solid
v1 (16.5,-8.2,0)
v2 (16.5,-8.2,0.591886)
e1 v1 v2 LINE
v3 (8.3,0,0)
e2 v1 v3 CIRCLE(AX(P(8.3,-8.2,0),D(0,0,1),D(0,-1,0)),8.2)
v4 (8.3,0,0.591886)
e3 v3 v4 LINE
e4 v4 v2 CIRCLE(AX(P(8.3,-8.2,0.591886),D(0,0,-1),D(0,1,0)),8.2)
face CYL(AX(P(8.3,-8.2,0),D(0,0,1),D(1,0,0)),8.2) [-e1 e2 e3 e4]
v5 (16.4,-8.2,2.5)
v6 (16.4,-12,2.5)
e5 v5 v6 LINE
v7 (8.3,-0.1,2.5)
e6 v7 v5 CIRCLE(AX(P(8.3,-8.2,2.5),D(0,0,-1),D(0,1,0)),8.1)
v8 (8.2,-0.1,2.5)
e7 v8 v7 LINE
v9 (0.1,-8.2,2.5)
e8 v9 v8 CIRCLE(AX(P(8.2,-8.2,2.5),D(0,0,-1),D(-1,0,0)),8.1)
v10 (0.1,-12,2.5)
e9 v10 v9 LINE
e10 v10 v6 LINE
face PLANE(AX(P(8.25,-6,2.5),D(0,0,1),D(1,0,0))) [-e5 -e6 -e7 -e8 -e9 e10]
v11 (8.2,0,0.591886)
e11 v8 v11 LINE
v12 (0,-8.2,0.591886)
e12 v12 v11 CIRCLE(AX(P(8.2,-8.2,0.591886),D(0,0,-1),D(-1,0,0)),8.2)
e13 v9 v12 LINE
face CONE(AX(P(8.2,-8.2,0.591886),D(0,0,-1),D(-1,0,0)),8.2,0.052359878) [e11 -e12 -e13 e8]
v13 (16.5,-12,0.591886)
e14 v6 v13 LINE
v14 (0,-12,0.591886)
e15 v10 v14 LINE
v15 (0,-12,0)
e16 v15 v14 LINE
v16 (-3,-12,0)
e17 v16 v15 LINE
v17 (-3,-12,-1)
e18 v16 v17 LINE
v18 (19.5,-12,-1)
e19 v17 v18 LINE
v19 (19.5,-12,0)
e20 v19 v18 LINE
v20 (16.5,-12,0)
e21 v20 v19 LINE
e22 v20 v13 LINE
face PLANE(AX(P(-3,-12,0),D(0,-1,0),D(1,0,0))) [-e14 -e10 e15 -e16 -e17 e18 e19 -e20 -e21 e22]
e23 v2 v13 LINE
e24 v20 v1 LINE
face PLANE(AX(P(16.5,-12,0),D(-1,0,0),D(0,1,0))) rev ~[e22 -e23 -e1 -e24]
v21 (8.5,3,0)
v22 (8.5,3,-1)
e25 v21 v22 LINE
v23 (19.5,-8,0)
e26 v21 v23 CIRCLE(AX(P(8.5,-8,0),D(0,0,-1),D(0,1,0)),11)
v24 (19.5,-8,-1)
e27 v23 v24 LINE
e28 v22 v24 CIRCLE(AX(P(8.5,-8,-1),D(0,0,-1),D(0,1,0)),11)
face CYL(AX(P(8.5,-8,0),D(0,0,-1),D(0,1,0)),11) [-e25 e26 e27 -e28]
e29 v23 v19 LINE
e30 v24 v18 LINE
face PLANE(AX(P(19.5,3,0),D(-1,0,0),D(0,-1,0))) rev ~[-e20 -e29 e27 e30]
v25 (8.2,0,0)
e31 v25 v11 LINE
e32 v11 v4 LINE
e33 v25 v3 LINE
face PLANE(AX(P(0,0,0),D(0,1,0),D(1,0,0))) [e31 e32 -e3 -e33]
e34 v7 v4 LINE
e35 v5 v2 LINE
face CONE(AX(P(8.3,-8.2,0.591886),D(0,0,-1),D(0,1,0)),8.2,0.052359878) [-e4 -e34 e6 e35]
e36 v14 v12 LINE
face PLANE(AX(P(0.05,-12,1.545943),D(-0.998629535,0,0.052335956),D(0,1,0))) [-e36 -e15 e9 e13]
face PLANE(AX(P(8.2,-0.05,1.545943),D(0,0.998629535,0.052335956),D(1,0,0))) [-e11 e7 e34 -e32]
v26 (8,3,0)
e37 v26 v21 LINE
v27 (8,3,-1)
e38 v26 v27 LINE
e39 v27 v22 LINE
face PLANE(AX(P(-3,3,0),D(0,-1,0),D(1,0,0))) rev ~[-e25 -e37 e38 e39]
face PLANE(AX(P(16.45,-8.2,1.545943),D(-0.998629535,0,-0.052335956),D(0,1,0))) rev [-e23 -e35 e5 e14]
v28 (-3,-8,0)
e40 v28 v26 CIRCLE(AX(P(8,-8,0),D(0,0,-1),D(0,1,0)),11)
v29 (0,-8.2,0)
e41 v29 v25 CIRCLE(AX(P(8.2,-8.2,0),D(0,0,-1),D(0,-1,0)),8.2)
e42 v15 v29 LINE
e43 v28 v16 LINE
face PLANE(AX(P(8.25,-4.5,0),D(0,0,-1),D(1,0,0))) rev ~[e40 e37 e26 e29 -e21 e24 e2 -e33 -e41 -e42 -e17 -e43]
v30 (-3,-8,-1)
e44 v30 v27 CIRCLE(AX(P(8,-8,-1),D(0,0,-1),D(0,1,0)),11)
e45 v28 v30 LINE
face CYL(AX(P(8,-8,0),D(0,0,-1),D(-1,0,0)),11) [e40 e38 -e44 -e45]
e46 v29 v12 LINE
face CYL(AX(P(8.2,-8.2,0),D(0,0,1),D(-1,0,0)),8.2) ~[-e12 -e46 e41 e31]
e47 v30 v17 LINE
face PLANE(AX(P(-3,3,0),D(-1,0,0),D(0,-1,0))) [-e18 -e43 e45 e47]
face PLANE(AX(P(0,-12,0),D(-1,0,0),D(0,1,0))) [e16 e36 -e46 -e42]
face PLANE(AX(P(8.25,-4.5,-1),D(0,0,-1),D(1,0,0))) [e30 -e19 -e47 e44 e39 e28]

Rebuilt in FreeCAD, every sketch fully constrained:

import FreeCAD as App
import Part
import Sketcher


def edges_at(feature, points):
    """Names of the edges that pass closest to the given points."""
    edges = feature.Shape.Edges
    near = lambda p: min(range(len(edges)), key=lambda i: edges[i].distToShape(Part.Vertex(*p))[0])
    return sorted({f"Edge{near(p) + 1}" for p in points})

doc = App.newDocument("Part")
params = doc.addObject("Spreadsheet::Sheet", "Params")
for row, (alias, value) in enumerate([
    ("sketch1_height", "12 mm"),
    ("sketch1_width", "16.5 mm"),
    ("pad1_length", "2.5 mm"),
    ("fillet_radius", "8.2 mm"),
    ("sketch2_height", "15 mm"),
    ("sketch2_width", "22.5 mm"),
    ("pad2_length", "1 mm"),
    ("fillet2_radius", "11 mm"),
    ("chamfer_size", "0.1 mm"),
    ("chamfer_size2", "1.908114 mm"),
], start=1):
    params.set(f"A{row}", alias)
    params.set(f"B{row}", "=" + value)
    params.setAlias(f"B{row}", alias)

body = doc.addObject("PartDesign::Body", "Body")

# Sketch on XY plane
sketch1 = doc.addObject("Sketcher::SketchObject", "Sketch")
body.addObject(sketch1)
sketch1.AttachmentSupport = (doc.XY_Plane, [""])
sketch1.MapMode = "FlatFace"
sketch1.addGeometry([
    Part.LineSegment(App.Vector(0, 0, 0), App.Vector(0, -12, 0)),
    Part.LineSegment(App.Vector(0, -12, 0), App.Vector(16, -12, 0)),
    Part.LineSegment(App.Vector(16, -12, 0), App.Vector(16, 0, 0)),
    Part.LineSegment(App.Vector(16, 0, 0), App.Vector(0, 0, 0)),
], False)
sketch1.addConstraint([
    Sketcher.Constraint("Coincident", 0, 2, 1, 1),
    Sketcher.Constraint("Coincident", 1, 2, 2, 1),
    Sketcher.Constraint("Coincident", 2, 2, 3, 1),
    Sketcher.Constraint("Coincident", 3, 2, 0, 1),
    Sketcher.Constraint("Vertical", 0),
    Sketcher.Constraint("Horizontal", 1),
    Sketcher.Constraint("Vertical", 2),
    Sketcher.Constraint("Horizontal", 3),
    Sketcher.Constraint("Coincident", 3, 2, -1, 1),
    Sketcher.Constraint("DistanceY", 0, 2, 0, 1, 12.0),
    Sketcher.Constraint("DistanceX", 1, 1, 1, 2, 16.5),
])
sketch1.setExpression("Constraints[9]", "Params.sketch1_height")
sketch1.setExpression("Constraints[10]", "Params.sketch1_width")
pad1 = doc.addObject("PartDesign::Pad", "Pad")
body.addObject(pad1)
pad1.Profile = sketch1
pad1.setExpression("Length", "Params.pad1_length")
doc.recompute()

fillet = doc.addObject("PartDesign::Fillet", "Fillet")
body.addObject(fillet)
fillet.Base = (pad1, edges_at(pad1, [(16.5, 0, 1.25), (0, 0, 1.25)]))
fillet.setExpression("Radius", "Params.fillet_radius")

# Sketch on XY plane
sketch2 = doc.addObject("Sketcher::SketchObject", "Sketch001")
body.addObject(sketch2)
sketch2.AttachmentSupport = (doc.XY_Plane, [""])
sketch2.MapMode = "FlatFace"
sketch2.addGeometry([
    Part.LineSegment(App.Vector(-3, -12, 0), App.Vector(-3, 3, 0)),
    Part.LineSegment(App.Vector(-3, 3, 0), App.Vector(20, 3, 0)),
    Part.LineSegment(App.Vector(20, 3, 0), App.Vector(20, -12, 0)),
    Part.LineSegment(App.Vector(20, -12, 0), App.Vector(-3, -12, 0)),
], False)
sketch2.addConstraint([
    Sketcher.Constraint("Coincident", 0, 2, 1, 1),
    Sketcher.Constraint("Coincident", 1, 2, 2, 1),
    Sketcher.Constraint("Coincident", 2, 2, 3, 1),
    Sketcher.Constraint("Coincident", 3, 2, 0, 1),
    Sketcher.Constraint("Vertical", 0),
    Sketcher.Constraint("Horizontal", 1),
    Sketcher.Constraint("Vertical", 2),
    Sketcher.Constraint("Horizontal", 3),
    Sketcher.Constraint("DistanceY", 0, 1, 0, 2, 15.0),
    Sketcher.Constraint("DistanceX", 1, 1, 1, 2, 22.5),
    Sketcher.Constraint("DistanceX", 0, 2, -1, 1, 3.0),
    Sketcher.Constraint("DistanceY", -1, 1, 0, 2, 3.0),
])
sketch2.setExpression("Constraints[8]", "Params.sketch2_height")
sketch2.setExpression("Constraints[9]", "Params.sketch2_width")
pad2 = doc.addObject("PartDesign::Pad", "Pad001")
body.addObject(pad2)
pad2.Profile = sketch2
pad2.setExpression("Length", "Params.pad2_length")
pad2.Reversed = True
doc.recompute()

fillet2 = doc.addObject("PartDesign::Fillet", "Fillet001")
body.addObject(fillet2)
fillet2.Base = (pad2, edges_at(pad2, [(19.5, 3, -0.5), (-3, 3, -0.5)]))
fillet2.setExpression("Radius", "Params.fillet2_radius")
doc.recompute()

chamfer = doc.addObject("PartDesign::Chamfer", "Chamfer")
body.addObject(chamfer)
chamfer.Base = (fillet2, edges_at(fillet2, [
    (0, -10.1, 2.5),
    (2.402, -2.402, 2.5),
    (14.098, -2.402, 2.5),
    (16.5, -10.1, 2.5),
]))
chamfer.ChamferType = "Two distances"
chamfer.setExpression("Size", "Params.chamfer_size")
chamfer.setExpression("Size2", "Params.chamfer_size2")
chamfer.FlipDirection = True

doc.recompute()
